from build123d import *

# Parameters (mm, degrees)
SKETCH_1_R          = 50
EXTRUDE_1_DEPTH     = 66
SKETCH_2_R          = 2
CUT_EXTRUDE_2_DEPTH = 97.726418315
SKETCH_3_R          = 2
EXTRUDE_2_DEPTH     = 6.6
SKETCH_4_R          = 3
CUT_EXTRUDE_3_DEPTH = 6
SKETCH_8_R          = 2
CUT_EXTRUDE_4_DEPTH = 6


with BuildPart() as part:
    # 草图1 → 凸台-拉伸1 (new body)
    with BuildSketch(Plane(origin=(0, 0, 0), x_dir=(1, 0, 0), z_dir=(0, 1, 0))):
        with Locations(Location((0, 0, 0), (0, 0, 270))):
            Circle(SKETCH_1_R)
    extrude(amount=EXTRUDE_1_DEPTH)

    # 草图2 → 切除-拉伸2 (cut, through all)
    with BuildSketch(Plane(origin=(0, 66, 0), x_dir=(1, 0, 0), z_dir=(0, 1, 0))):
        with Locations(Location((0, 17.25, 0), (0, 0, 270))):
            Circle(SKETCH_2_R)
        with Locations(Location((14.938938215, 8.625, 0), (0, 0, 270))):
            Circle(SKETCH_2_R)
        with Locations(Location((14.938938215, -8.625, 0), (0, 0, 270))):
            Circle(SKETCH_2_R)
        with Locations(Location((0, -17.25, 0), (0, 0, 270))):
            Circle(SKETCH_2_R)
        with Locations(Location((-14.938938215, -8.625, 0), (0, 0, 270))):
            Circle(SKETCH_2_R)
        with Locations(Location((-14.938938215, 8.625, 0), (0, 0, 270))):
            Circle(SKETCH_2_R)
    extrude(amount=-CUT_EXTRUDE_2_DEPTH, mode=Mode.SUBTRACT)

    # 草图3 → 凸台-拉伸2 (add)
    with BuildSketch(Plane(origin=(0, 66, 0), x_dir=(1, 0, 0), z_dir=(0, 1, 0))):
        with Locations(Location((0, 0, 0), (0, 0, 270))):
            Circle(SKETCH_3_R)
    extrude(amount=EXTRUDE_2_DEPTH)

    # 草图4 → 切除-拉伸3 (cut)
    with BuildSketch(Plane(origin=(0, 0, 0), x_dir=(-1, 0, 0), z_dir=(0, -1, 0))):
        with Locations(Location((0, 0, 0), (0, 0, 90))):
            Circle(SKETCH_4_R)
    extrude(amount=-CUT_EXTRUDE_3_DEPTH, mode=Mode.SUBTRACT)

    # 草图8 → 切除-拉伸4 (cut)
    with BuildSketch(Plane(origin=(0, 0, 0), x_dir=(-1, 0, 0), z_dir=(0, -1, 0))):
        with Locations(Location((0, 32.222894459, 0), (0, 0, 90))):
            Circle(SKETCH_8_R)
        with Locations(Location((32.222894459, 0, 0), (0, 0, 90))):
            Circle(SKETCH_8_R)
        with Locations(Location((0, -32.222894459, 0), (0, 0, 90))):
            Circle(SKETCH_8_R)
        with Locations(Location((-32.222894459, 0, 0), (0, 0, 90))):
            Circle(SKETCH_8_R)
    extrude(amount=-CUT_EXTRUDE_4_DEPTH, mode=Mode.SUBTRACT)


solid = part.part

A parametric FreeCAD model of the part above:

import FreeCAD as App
import Part
import Sketcher

V = App.Vector

doc = App.newDocument("Part")
body = doc.addObject("PartDesign::Body", "Body")

# Sketch on XZ plane
sketch1 = doc.addObject("Sketcher::SketchObject", "Sketch")
body.addObject(sketch1)
sketch1.AttachmentSupport = (doc.XZ_Plane, [""])
sketch1.MapMode = "FlatFace"
sketch1.addGeometry(Part.Circle(V(0, 0, 0), V(0, 0, 1), 50), False)
sketch1.addConstraint(Sketcher.Constraint("Coincident", 0, 3, -1, 1))
sketch1.addConstraint(Sketcher.Constraint("Diameter", 0, 100.0))
pad1 = doc.addObject("PartDesign::Pad", "Pad")
body.addObject(pad1)
pad1.Profile = sketch1
pad1.Length = 66
pad1.Reversed = True

# Sketch on XZ plane
sketch2 = doc.addObject("Sketcher::SketchObject", "Sketch001")
body.addObject(sketch2)
sketch2.AttachmentSupport = (doc.XZ_Plane, [""])
sketch2.MapMode = "FlatFace"
sketch2.AttachmentOffset = App.Placement(V(0, 0, -66), App.Rotation())
sketch2.addGeometry(Part.Circle(V(0, -17.2, 0), V(0, 0, 1), 2), False)
sketch2.addGeometry(Part.Circle(V(14.9, -8.6, 0), V(0, 0, 1), 2), False)
sketch2.addGeometry(Part.Circle(V(14.9, 8.6, 0), V(0, 0, 1), 2), False)
sketch2.addGeometry(Part.Circle(V(0, 17.2, 0), V(0, 0, 1), 2), False)
sketch2.addGeometry(Part.Circle(V(-14.9, 8.6, 0), V(0, 0, 1), 2), False)
sketch2.addGeometry(Part.Circle(V(-14.9, -8.6, 0), V(0, 0, 1), 2), False)
sketch2.addConstraint(Sketcher.Constraint("Equal", 0, 1))
sketch2.addConstraint(Sketcher.Constraint("Equal", 1, 2))
sketch2.addConstraint(Sketcher.Constraint("Equal", 2, 3))
sketch2.addConstraint(Sketcher.Constraint("Equal", 3, 4))
sketch2.addConstraint(Sketcher.Constraint("Equal", 4, 5))
sketch2.addConstraint(Sketcher.Constraint("Symmetric", 0, 3, 3, 3, -1, 1))
sketch2.addConstraint(Sketcher.Constraint("Symmetric", 1, 3, 4, 3, -1, 1))
sketch2.addConstraint(Sketcher.Constraint("Symmetric", 2, 3, 5, 3, -1, 1))
sketch2.addConstraint(Sketcher.Constraint("Symmetric", 2, 3, 4, 3, -2))
sketch2.addConstraint(Sketcher.Constraint("PointOnObject", 0, 3, -2))
sketch2.addConstraint(Sketcher.Constraint("Diameter", 0, 4.0))
sketch2.addConstraint(Sketcher.Constraint("DistanceY", 0, 3, 3, 3, 34.5))
sketch2.addConstraint(Sketcher.Constraint("DistanceY", 1, 3, 2, 3, 17.25))
sketch2.addConstraint(Sketcher.Constraint("DistanceX", -1, 1, 1, 3, 14.938938))
pocket1 = doc.addObject("PartDesign::Pocket", "Pocket")
body.addObject(pocket1)
pocket1.Profile = sketch2
pocket1.Type = "ThroughAll"
pocket1.Reversed = True

# Sketch on XZ plane
sketch3 = doc.addObject("Sketcher::SketchObject", "Sketch002")
body.addObject(sketch3)
sketch3.AttachmentSupport = (doc.XZ_Plane, [""])
sketch3.MapMode = "FlatFace"
sketch3.AttachmentOffset = App.Placement(V(0, 0, -66), App.Rotation())
sketch3.addGeometry(Part.Circle(V(0, 0, 0), V(0, 0, 1), 2), False)
sketch3.addConstraint(Sketcher.Constraint("Coincident", 0, 3, -1, 1))
sketch3.addConstraint(Sketcher.Constraint("Diameter", 0, 4.0))
pad2 = doc.addObject("PartDesign::Pad", "Pad001")
body.addObject(pad2)
pad2.Profile = sketch3
pad2.Length = 6.6
pad2.Reversed = True

# Sketch on XZ plane
sketch4 = doc.addObject("Sketcher::SketchObject", "Sketch003")
body.addObject(sketch4)
sketch4.AttachmentSupport = (doc.XZ_Plane, [""])
sketch4.MapMode = "FlatFace"
sketch4.addGeometry(Part.Circle(V(0, 0, 0), V(0, 0, 1), 3), False)
sketch4.addConstraint(Sketcher.Constraint("Coincident", 0, 3, -1, 1))
sketch4.addConstraint(Sketcher.Constraint("Diameter", 0, 6.0))
pocket2 = doc.addObject("PartDesign::Pocket", "Pocket001")
body.addObject(pocket2)
pocket2.Profile = sketch4
pocket2.Length = 6

# Sketch on XZ plane
sketch5 = doc.addObject("Sketcher::SketchObject", "Sketch004")
body.addObject(sketch5)
sketch5.AttachmentSupport = (doc.XZ_Plane, [""])
sketch5.MapMode = "FlatFace"
sketch5.addGeometry(Part.Circle(V(0, -32.2, 0), V(0, 0, 1), 2), False)
sketch5.addGeometry(Part.Circle(V(-32.2, 0, 0), V(0, 0, 1), 2), False)
sketch5.addGeometry(Part.Circle(V(0, 32.2, 0), V(0, 0, 1), 2), False)
sketch5.addGeometry(Part.Circle(V(32.2, 0, 0), V(0, 0, 1), 2), False)
sketch5.addConstraint(Sketcher.Constraint("Equal", 0, 1))
sketch5.addConstraint(Sketcher.Constraint("Equal", 1, 2))
sketch5.addConstraint(Sketcher.Constraint("Equal", 2, 3))
sketch5.addConstraint(Sketcher.Constraint("Symmetric", 0, 3, 2, 3, -1, 1))
sketch5.addConstraint(Sketcher.Constraint("Symmetric", 1, 3, 3, 3, -1, 1))
sketch5.addConstraint(Sketcher.Constraint("PointOnObject", 0, 3, -2))
sketch5.addConstraint(Sketcher.Constraint("PointOnObject", 1, 3, -1))
sketch5.addConstraint(Sketcher.Constraint("Diameter", 0, 4.0))
sketch5.addConstraint(Sketcher.Constraint("DistanceY", 0, 3, 2, 3, 64.445789))
sketch5.addConstraint(Sketcher.Constraint("DistanceX", 1, 3, 3, 3, 64.445789))
pocket3 = doc.addObject("PartDesign::Pocket", "Pocket002")
body.addObject(pocket3)
pocket3.Profile = sketch5
pocket3.Length = 6

doc.recompute()
